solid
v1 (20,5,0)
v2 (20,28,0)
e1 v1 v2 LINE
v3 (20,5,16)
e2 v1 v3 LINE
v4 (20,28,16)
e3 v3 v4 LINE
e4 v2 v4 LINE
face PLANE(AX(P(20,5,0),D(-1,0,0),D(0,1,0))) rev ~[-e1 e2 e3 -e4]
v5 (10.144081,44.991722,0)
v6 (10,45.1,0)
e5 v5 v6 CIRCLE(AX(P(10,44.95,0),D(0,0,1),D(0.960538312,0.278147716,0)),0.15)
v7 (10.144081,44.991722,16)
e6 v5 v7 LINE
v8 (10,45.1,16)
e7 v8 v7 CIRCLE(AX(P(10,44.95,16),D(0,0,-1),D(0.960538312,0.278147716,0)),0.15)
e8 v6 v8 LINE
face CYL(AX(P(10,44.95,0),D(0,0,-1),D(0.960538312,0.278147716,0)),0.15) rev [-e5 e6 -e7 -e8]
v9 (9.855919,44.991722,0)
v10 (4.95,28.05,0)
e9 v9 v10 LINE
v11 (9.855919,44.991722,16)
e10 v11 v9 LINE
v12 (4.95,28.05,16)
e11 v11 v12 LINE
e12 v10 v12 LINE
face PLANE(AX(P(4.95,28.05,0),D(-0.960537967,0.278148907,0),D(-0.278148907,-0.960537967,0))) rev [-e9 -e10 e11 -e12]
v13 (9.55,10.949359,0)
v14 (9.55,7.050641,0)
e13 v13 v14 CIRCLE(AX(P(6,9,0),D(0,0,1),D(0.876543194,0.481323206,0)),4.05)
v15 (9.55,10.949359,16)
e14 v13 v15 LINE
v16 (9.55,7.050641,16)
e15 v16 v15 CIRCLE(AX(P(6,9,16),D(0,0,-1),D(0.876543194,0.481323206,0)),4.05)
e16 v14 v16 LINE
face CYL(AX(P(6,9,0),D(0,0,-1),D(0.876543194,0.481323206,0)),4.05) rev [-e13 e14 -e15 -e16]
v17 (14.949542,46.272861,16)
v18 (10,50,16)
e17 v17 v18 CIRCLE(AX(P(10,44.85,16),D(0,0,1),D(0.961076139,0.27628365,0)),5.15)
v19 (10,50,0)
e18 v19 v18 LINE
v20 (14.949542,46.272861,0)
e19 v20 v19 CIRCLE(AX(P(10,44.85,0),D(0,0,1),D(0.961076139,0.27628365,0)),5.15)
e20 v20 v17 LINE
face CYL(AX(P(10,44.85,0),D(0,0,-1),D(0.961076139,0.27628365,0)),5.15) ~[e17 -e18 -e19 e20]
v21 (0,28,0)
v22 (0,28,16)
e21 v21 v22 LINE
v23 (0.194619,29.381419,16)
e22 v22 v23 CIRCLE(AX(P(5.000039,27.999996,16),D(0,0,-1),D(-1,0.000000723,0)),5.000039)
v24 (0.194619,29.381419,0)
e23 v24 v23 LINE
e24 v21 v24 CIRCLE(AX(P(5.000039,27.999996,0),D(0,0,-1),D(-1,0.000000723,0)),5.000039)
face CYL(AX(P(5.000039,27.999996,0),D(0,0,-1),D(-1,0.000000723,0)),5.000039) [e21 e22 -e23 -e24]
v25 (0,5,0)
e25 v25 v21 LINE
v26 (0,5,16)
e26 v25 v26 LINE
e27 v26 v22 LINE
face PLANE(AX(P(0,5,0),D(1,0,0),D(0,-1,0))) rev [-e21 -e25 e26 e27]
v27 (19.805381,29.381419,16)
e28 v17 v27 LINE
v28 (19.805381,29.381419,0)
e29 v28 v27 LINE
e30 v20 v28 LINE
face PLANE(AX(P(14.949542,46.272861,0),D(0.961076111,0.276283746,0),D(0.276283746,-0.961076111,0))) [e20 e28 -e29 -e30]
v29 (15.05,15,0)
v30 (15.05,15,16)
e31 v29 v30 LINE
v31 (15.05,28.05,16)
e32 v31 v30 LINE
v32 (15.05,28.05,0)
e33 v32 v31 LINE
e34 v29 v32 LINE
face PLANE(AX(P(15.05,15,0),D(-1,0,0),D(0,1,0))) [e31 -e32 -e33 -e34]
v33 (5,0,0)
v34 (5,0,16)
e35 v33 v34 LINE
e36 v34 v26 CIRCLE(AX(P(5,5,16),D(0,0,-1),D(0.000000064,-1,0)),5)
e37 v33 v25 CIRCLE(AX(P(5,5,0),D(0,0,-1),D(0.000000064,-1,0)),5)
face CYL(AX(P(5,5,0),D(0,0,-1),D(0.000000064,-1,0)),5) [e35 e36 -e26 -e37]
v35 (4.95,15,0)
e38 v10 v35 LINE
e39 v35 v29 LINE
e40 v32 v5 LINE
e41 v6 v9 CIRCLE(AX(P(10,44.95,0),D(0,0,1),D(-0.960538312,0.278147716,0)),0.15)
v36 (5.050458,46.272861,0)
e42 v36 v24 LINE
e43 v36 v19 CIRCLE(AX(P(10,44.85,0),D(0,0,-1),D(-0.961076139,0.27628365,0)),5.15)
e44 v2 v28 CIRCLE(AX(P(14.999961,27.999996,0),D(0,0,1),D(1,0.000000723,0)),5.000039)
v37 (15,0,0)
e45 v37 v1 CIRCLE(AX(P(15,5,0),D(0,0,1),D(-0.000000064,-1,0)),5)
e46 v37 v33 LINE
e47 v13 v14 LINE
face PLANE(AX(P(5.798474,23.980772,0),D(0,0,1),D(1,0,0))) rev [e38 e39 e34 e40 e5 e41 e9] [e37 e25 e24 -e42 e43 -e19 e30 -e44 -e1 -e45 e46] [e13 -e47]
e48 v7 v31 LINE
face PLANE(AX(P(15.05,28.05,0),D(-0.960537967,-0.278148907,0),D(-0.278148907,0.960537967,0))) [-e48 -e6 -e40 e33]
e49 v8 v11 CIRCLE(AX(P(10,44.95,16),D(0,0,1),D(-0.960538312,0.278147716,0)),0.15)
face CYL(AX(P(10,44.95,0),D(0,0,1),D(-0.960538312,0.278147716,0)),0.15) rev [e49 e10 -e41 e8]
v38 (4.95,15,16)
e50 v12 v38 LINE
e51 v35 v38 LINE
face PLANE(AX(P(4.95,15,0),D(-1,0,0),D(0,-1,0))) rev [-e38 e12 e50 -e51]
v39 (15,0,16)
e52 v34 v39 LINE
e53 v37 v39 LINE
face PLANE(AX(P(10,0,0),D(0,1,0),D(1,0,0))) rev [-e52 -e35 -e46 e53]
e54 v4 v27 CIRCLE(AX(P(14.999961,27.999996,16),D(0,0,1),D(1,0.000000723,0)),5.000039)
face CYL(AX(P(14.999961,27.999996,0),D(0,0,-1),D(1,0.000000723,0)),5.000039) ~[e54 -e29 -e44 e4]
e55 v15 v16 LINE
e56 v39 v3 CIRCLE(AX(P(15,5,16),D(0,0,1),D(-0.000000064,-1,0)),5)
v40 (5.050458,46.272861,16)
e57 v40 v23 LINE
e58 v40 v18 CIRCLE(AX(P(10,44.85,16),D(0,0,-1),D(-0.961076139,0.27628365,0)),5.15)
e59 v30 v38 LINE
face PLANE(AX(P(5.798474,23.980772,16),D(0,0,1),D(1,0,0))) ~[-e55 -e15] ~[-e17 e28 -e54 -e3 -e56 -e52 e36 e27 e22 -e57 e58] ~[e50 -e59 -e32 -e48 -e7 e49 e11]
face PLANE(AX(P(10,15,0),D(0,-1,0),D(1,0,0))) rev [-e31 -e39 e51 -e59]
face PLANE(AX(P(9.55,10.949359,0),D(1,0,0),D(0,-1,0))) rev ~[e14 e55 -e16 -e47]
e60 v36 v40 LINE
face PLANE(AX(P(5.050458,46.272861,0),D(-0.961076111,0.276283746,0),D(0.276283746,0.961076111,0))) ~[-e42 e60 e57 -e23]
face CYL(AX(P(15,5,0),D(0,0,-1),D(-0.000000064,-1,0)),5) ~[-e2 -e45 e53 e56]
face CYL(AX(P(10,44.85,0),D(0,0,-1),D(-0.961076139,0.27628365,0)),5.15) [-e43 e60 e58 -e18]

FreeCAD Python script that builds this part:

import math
import FreeCAD as App
import Part
import Sketcher
from FreeCAD import Vector
Q = App.Units.Quantity

doc = App.newDocument("Part")
body = doc.addObject("PartDesign::Body", "Body")

sketch1 = doc.addObject("Sketcher::SketchObject", "Sketch")
body.addObject(sketch1)
sketch1.AttachmentSupport = (doc.XY_Plane, [""])
sketch1.MapMode = "FlatFace"
sketch1.addGeometry([
    Part.ArcOfCircle(Part.Circle(Vector(0, 29.9, 0), Vector(0, 0, 1), 5.1), math.radians(16), math.radians(90)),
    Part.LineSegment(Vector(0, 35, 0), Vector(0, -15, 0)),
    Part.LineSegment(Vector(0, -15, 0), Vector(5, -15, 0)),
    Part.ArcOfCircle(Part.Circle(Vector(5, -10, 0), Vector(0, 0, 1), 5), math.radians(-90), math.radians(0)),
    Part.LineSegment(Vector(10, -10, 0), Vector(10, 13, 0)),
    Part.ArcOfCircle(Part.Circle(Vector(5, 13, 0), Vector(0, 0, 1), 5), math.radians(0), math.radians(16.04)),
    Part.LineSegment(Vector(9.8, 14.4, 0), Vector(4.9, 31.3, 0)),
], False)
sketch1.addConstraint([
    Sketcher.Constraint("Coincident", 0, 2, 1, 1),
    Sketcher.Constraint("Coincident", 1, 2, 2, 1),
    Sketcher.Constraint("Tangent", 2, 2, 3, 1),
    Sketcher.Constraint("Tangent", 3, 2, 4, 1),
    Sketcher.Constraint("Tangent", 4, 2, 5, 1),
    Sketcher.Constraint("Tangent", 5, 2, 6, 1),
    Sketcher.Constraint("Tangent", 6, 2, 0, 1),
    Sketcher.Constraint("Vertical", 1),
    Sketcher.Constraint("Horizontal", 2),
    Sketcher.Constraint("Vertical", 4),
    Sketcher.Constraint("PointOnObject", 0, 3, -2),
    Sketcher.Constraint("PointOnObject", 0, 2, -2),
    Sketcher.Constraint("Radius", 3, Q("5 mm")),
    Sketcher.Constraint("DistanceX", 2, 1, 2, 2, Q("5 mm")),
    Sketcher.Constraint("DistanceY", 1, 2, 1, 1, Q("50 mm")),
    Sketcher.Constraint("DistanceY", 4, 1, 4, 2, Q("23 mm")),
    Sketcher.Constraint("Radius", 0, Q("5.15 mm")),
    Sketcher.Constraint("DistanceY", 3, 3, -1, 1, Q("10 mm")),
    Sketcher.Constraint("Radius", 5, Q("5.000039 mm")),
])
pad1 = doc.addObject("PartDesign::Pad", "Pad")
body.addObject(pad1)
pad1.Profile = sketch1
pad1.Length = 16

sketch2 = doc.addObject("Sketcher::SketchObject", "Sketch001")
body.addObject(sketch2)
sketch2.AttachmentSupport = (doc.XY_Plane, [""])
sketch2.MapMode = "FlatFace"
sketch2.addGeometry([
    Part.LineSegment(Vector(0, 0, 0), Vector(5.05, 0, 0)),
    Part.LineSegment(Vector(5.05, 0, 0), Vector(5.05, 13.05, 0)),
    Part.LineSegment(Vector(5.05, 13.05, 0), Vector(0.14, 29.99, 0)),
    Part.ArcOfCircle(Part.Circle(Vector(0, 29.95, 0), Vector(0, 0, 1), 0.15), math.radians(16), math.radians(90)),
    Part.LineSegment(Vector(0, 30.1, 0), Vector(0, 0, 0)),
], False)
sketch2.addConstraint([
    Sketcher.Constraint("Coincident", 0, 2, 1, 1),
    Sketcher.Constraint("Coincident", 1, 2, 2, 1),
    Sketcher.Constraint("Tangent", 2, 2, 3, 1),
    Sketcher.Constraint("Coincident", 3, 2, 4, 1),
    Sketcher.Constraint("Coincident", 4, 2, 0, 1),
    Sketcher.Constraint("Horizontal", 0),
    Sketcher.Constraint("Vertical", 1),
    Sketcher.Constraint("Vertical", 4),
    Sketcher.Constraint("Coincident", 4, 2, -1, 1),
    Sketcher.Constraint("PointOnObject", 3, 3, -2),
    Sketcher.Constraint("Radius", 3, Q("0.15 mm")),
    Sketcher.Constraint("DistanceY", 4, 2, 4, 1, Q("30.1 mm")),
    Sketcher.Constraint("DistanceX", 0, 1, 0, 2, Q("5.05 mm")),
    Sketcher.Constraint("DistanceY", 1, 1, 1, 2, Q("13.05 mm")),
])
pocket1 = doc.addObject("PartDesign::Pocket", "Pocket")
body.addObject(pocket1)
pocket1.Profile = sketch2
pocket1.Type = "ThroughAll"
pocket1.Midplane = True
doc.recompute()

mirrored = doc.addObject("PartDesign::Mirrored", "Mirrored")
body.addObject(mirrored)
mirrored.Originals = [pad1, pocket1]
mirrored.MirrorPlane = (doc.YZ_Plane, [""])
body.Tip = mirrored

sketch3 = doc.addObject("Sketcher::SketchObject", "Sketch002")
body.addObject(sketch3)
sketch3.AttachmentSupport = (doc.XY_Plane, [""])
sketch3.MapMode = "FlatFace"
sketch3.addGeometry([
    Part.ArcOfCircle(Part.Circle(Vector(-4, -6, 0), Vector(0, 0, 1), 4.1), math.radians(29), math.radians(331)),
    Part.LineSegment(Vector(-0.5, -7.9, 0), Vector(-0.5, -4.1, 0)),
], False)
sketch3.addConstraint([
    Sketcher.Constraint("Coincident", 0, 1, 1, 2),
    Sketcher.Constraint("Coincident", 1, 1, 0, 2),
    Sketcher.Constraint("Vertical", 1),
    Sketcher.Constraint("Radius", 0, Q("4.05 mm")),
    Sketcher.Constraint("DistanceX", 0, 3, -1, 1, Q("4 mm")),
    Sketcher.Constraint("DistanceY", 0, 3, -1, 1, Q("6 mm")),
    Sketcher.Constraint("DistanceX", 0, 1, -1, 1, Q("0.45 mm")),
])
pocket2 = doc.addObject("PartDesign::Pocket", "Pocket001")
body.addObject(pocket2)
pocket2.Profile = sketch3
pocket2.Type = "ThroughAll"
pocket2.Midplane = True
body2 = doc.addObject("PartDesign::Body", "Body001")
doc.recompute()

body.Placement = App.Placement(Vector(10, 15, 0), App.Rotation(Vector(0, 0, 1), 0))
boolean = doc.addObject("PartDesign::Boolean", "Boolean")
body2.addObject(boolean)
boolean.Type = "Fuse"
boolean.addObjects([body])

doc.recompute()
